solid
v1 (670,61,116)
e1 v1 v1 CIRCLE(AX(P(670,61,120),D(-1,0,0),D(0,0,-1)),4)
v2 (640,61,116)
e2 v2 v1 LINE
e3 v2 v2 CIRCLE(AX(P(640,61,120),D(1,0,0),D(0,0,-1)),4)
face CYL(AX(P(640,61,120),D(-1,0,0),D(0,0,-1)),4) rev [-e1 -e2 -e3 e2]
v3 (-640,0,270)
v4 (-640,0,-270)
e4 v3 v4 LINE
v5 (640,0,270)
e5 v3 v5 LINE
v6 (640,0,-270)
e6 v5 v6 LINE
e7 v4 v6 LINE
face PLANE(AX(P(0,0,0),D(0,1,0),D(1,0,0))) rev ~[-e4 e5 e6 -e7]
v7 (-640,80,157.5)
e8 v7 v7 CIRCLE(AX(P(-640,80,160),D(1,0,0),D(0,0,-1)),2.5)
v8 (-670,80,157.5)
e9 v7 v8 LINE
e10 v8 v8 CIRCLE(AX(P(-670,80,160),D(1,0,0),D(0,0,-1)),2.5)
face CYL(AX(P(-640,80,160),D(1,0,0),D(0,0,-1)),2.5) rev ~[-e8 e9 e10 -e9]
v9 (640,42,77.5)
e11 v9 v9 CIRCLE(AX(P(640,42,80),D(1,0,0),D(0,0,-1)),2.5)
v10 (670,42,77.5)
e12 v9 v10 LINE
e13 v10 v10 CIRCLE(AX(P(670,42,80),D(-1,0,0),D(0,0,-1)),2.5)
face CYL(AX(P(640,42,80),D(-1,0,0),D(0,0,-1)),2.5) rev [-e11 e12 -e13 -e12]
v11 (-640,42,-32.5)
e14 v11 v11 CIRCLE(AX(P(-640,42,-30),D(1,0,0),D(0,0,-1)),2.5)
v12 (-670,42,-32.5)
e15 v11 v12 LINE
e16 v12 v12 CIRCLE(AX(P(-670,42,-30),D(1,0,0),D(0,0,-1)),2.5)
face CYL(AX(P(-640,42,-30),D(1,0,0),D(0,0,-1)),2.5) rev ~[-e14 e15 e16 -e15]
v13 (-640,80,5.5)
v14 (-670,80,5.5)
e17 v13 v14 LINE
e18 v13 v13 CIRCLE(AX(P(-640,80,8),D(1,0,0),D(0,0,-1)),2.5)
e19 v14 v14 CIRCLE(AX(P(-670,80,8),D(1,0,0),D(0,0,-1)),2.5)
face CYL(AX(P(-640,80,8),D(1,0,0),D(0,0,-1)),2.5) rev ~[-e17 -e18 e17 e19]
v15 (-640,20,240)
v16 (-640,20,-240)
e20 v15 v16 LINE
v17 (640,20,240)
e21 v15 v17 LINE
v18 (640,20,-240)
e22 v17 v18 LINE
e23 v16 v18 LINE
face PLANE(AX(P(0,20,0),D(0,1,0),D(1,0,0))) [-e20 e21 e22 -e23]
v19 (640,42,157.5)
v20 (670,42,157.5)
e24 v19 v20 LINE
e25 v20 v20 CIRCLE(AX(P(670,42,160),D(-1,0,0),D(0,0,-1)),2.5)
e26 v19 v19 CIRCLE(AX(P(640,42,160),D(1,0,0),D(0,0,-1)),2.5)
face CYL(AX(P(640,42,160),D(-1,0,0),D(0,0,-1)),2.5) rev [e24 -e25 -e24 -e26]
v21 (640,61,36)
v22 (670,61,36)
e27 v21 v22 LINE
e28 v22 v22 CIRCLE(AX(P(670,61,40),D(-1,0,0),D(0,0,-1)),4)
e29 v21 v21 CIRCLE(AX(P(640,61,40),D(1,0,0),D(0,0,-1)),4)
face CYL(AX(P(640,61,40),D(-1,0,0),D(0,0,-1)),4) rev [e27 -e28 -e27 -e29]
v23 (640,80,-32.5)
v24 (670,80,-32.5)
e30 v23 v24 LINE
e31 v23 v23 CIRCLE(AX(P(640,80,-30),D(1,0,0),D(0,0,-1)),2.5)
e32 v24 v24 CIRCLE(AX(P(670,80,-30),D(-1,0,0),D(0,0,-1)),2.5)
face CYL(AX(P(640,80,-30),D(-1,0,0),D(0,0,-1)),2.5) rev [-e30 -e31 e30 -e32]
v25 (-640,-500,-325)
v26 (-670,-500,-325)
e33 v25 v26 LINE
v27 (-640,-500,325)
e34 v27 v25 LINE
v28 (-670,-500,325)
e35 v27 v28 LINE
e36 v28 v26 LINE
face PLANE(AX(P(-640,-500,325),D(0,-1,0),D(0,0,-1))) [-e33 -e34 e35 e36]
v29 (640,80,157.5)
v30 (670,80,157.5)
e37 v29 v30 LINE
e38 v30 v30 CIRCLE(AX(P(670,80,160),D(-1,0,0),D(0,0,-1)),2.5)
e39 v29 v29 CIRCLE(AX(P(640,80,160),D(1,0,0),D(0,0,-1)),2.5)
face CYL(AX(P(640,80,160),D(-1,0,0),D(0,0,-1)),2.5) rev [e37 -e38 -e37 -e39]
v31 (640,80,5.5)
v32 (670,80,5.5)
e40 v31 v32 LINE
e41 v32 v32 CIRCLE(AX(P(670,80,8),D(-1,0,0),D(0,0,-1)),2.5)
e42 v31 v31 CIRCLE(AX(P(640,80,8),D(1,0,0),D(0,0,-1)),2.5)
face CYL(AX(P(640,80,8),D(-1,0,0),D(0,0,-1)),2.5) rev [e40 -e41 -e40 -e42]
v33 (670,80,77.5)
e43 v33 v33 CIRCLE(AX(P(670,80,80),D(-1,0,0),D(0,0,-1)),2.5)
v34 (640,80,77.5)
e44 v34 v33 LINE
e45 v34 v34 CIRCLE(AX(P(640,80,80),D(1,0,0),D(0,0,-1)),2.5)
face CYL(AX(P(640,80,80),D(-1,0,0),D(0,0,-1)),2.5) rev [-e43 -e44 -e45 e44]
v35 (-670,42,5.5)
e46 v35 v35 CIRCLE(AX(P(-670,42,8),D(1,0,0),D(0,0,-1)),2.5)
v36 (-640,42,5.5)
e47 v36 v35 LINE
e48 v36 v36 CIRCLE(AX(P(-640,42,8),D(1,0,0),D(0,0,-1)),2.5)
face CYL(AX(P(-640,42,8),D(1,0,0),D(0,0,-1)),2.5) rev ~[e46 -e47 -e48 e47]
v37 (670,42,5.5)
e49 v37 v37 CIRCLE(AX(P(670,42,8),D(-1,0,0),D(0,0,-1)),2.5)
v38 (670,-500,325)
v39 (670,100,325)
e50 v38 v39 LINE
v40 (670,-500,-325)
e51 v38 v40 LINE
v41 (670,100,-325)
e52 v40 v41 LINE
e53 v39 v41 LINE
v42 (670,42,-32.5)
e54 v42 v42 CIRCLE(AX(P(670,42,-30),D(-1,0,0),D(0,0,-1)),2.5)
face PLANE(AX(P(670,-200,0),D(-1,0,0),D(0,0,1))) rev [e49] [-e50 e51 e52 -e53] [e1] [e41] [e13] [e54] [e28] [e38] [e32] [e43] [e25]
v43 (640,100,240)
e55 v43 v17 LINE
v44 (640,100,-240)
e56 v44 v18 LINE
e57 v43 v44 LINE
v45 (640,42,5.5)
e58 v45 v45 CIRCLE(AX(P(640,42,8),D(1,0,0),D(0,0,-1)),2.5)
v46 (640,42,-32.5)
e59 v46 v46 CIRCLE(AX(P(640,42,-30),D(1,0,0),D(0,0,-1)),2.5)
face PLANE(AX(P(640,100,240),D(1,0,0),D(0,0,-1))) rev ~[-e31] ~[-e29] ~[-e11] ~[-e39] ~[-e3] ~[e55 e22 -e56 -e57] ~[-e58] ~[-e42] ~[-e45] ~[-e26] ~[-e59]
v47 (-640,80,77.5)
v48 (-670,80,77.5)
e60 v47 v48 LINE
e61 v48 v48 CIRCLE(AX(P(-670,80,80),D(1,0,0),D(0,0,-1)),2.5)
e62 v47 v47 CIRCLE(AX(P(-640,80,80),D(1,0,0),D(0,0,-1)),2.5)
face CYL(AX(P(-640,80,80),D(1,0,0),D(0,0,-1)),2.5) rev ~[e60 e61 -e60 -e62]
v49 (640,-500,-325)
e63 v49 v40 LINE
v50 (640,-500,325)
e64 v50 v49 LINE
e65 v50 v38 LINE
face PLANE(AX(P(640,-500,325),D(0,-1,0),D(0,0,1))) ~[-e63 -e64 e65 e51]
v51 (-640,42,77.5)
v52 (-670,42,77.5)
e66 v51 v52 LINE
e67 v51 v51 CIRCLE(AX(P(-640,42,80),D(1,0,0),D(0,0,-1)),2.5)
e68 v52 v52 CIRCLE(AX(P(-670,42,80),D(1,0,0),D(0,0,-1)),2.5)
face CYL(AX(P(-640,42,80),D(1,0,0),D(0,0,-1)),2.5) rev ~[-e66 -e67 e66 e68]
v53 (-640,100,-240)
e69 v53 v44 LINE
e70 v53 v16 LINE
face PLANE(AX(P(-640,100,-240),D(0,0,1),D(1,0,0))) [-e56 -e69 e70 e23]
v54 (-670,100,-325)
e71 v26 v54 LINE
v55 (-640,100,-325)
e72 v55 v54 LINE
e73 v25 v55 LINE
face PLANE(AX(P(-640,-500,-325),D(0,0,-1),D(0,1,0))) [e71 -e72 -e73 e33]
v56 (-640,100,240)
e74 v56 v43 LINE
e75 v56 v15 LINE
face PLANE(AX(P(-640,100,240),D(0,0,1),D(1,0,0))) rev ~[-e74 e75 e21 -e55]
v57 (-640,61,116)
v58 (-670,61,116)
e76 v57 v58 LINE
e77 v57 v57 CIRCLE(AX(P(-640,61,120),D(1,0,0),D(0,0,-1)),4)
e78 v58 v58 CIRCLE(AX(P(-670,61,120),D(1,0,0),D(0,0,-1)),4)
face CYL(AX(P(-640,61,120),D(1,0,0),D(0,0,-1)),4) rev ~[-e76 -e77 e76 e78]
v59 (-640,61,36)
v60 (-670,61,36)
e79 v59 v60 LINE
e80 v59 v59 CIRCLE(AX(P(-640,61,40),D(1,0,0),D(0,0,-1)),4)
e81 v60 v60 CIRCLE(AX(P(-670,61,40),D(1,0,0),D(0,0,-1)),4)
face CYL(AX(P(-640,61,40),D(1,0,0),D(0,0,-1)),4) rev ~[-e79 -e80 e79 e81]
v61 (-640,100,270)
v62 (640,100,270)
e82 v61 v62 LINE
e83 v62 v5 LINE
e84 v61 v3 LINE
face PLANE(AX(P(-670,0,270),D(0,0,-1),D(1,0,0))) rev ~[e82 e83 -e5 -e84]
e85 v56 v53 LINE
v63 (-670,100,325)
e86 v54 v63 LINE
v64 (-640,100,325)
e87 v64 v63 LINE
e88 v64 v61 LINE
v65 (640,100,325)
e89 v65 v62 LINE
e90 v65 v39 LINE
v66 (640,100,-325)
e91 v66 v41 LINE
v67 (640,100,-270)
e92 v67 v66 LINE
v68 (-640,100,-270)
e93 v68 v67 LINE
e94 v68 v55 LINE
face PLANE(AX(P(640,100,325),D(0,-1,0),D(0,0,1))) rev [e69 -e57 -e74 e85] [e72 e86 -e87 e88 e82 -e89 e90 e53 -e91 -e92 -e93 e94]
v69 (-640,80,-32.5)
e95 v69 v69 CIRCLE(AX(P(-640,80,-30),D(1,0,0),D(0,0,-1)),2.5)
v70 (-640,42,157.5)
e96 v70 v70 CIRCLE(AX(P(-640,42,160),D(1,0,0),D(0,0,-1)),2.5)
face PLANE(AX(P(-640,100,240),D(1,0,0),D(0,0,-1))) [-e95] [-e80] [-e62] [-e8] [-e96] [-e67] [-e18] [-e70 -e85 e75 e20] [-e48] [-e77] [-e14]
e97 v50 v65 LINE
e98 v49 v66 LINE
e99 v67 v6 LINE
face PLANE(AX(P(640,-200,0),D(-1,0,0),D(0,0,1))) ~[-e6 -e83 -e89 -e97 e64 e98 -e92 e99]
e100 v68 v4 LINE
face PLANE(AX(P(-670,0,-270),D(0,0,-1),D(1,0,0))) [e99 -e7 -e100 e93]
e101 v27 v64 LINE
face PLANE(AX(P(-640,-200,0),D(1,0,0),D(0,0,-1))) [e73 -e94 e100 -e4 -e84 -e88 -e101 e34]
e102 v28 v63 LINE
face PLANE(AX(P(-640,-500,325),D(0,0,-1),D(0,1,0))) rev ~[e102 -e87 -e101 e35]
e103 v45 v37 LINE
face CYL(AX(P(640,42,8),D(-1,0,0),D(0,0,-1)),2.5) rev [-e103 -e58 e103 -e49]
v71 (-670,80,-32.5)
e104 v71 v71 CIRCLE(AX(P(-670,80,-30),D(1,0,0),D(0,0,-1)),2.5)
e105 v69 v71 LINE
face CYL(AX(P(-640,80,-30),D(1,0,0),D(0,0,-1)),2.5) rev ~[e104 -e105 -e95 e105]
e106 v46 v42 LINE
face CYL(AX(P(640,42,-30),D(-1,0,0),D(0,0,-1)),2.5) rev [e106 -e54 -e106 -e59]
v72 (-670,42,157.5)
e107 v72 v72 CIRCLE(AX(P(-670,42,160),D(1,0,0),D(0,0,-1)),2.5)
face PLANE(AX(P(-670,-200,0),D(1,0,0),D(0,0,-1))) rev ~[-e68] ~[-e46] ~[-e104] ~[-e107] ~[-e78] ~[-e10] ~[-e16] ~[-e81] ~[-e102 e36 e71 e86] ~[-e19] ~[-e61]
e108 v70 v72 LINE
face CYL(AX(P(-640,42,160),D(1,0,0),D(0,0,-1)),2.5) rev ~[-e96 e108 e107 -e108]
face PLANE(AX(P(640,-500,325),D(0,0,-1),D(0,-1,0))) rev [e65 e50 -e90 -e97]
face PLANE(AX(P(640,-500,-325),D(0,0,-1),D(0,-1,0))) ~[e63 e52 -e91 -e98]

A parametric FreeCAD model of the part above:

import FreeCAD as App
import Part
import Sketcher
Q = App.Units.Quantity

doc = App.newDocument("Part")
body = doc.addObject("PartDesign::Body", "Body")

sketch1 = body.newObject("Sketcher::SketchObject", "Sketch")
sketch1.AttachmentSupport = (doc.getObject("XZ_Plane"), [""])
sketch1.MapMode = "FlatFace"
sketch1.addGeometry([
    Part.LineSegment(App.Vector(-670, -270, 0), App.Vector(-670, 270, 0)),
    Part.LineSegment(App.Vector(-670, 270, 0), App.Vector(670, 270, 0)),
    Part.LineSegment(App.Vector(670, 270, 0), App.Vector(670, -270, 0)),
    Part.LineSegment(App.Vector(670, -270, 0), App.Vector(-670, -270, 0)),
], False)
sketch1.addConstraint([
    Sketcher.Constraint("Coincident", 0, 2, 1, 1),
    Sketcher.Constraint("Coincident", 1, 2, 2, 1),
    Sketcher.Constraint("Coincident", 2, 2, 3, 1),
    Sketcher.Constraint("Coincident", 3, 2, 0, 1),
    Sketcher.Constraint("Vertical", 0),
    Sketcher.Constraint("Horizontal", 1),
    Sketcher.Constraint("Vertical", 2),
    Sketcher.Constraint("Horizontal", 3),
    Sketcher.Constraint("Symmetric", 0, 2, 2, 2, -1, 1),
    Sketcher.Constraint("DistanceX", 1, 1, 1, 2, Q("1340 mm")),
    Sketcher.Constraint("DistanceY", 0, 1, 0, 2, Q("540 mm")),
])
pad1 = body.newObject("PartDesign::Pad", "Pad")
pad1.Profile = sketch1
pad1.Length = 100
pad1.Reversed = True

sketch2 = body.newObject("Sketcher::SketchObject", "Sketch001")
sketch2.AttachmentSupport = (doc.getObject("XZ_Plane"), [""])
sketch2.MapMode = "FlatFace"
sketch2.AttachmentOffset = App.Placement(App.Vector(0, 0, -100), App.Rotation())
sketch2.addGeometry([
    Part.LineSegment(App.Vector(-640, -240, 0), App.Vector(-640, 240, 0)),
    Part.LineSegment(App.Vector(-640, 240, 0), App.Vector(640, 240, 0)),
    Part.LineSegment(App.Vector(640, 240, 0), App.Vector(640, -240, 0)),
    Part.LineSegment(App.Vector(640, -240, 0), App.Vector(-640, -240, 0)),
], False)
sketch2.addConstraint([
    Sketcher.Constraint("Coincident", 0, 2, 1, 1),
    Sketcher.Constraint("Coincident", 1, 2, 2, 1),
    Sketcher.Constraint("Coincident", 2, 2, 3, 1),
    Sketcher.Constraint("Coincident", 3, 2, 0, 1),
    Sketcher.Constraint("Vertical", 0),
    Sketcher.Constraint("Horizontal", 1),
    Sketcher.Constraint("Vertical", 2),
    Sketcher.Constraint("Horizontal", 3),
    Sketcher.Constraint("Symmetric", 0, 2, 2, 2, -1, 1),
    Sketcher.Constraint("DistanceX", 1, 1, 1, 2, Q("1280 mm")),
    Sketcher.Constraint("DistanceY", 0, 1, 0, 2, Q("480 mm")),
])
pocket1 = body.newObject("PartDesign::Pocket", "Pocket")
pocket1.Profile = sketch2
pocket1.Length = 80
pocket1.Reversed = True

sketch3 = body.newObject("Sketcher::SketchObject", "Sketch002")
sketch3.AttachmentSupport = (doc.getObject("YZ_Plane"), [""])
sketch3.MapMode = "FlatFace"
sketch3.AttachmentOffset = App.Placement(App.Vector(0, 0, -640), App.Rotation())
sketch3.addGeometry([
    Part.LineSegment(App.Vector(100, 325, 0), App.Vector(-500, 325, 0)),
    Part.LineSegment(App.Vector(-500, 325, 0), App.Vector(-500, -325, 0)),
    Part.LineSegment(App.Vector(-500, -325, 0), App.Vector(100, -325, 0)),
    Part.LineSegment(App.Vector(100, -325, 0), App.Vector(100, 325, 0)),
], False)
sketch3.addConstraint([
    Sketcher.Constraint("Coincident", 0, 2, 1, 1),
    Sketcher.Constraint("Coincident", 1, 2, 2, 1),
    Sketcher.Constraint("Coincident", 2, 2, 3, 1),
    Sketcher.Constraint("Coincident", 3, 2, 0, 1),
    Sketcher.Constraint("Horizontal", 0),
    Sketcher.Constraint("Vertical", 1),
    Sketcher.Constraint("Horizontal", 2),
    Sketcher.Constraint("Vertical", 3),
    Sketcher.Constraint("DistanceX", 0, 2, 0, 1, Q("600 mm")),
    Sketcher.Constraint("DistanceY", 1, 2, 1, 1, Q("650 mm")),
    Sketcher.Constraint("DistanceX", 0, 2, -1, 1, Q("500 mm")),
    Sketcher.Constraint("DistanceY", -1, 1, 0, 2, Q("325 mm")),
])
pad2 = body.newObject("PartDesign::Pad", "Pad001")
pad2.Profile = sketch3
pad2.Length = 30
pad2.Reversed = True
doc.recompute()

mirrored = body.newObject("PartDesign::Mirrored", "Mirrored")
mirrored.Originals = [pad2]
mirrored.MirrorPlane = (doc.getObject("YZ_Plane"), [""])
body.Tip = mirrored

sketch4 = body.newObject("Sketcher::SketchObject", "Sketch003")
sketch4.AttachmentSupport = (doc.getObject("YZ_Plane"), [""])
sketch4.MapMode = "FlatFace"
sketch4.AttachmentOffset = App.Placement(App.Vector(0, 0, -640), App.Rotation())
sketch4.addGeometry([
    Part.Circle(App.Vector(80, 160, 0), App.Vector(0, 0, 1), 2.5),
    Part.Circle(App.Vector(42, 160, 0), App.Vector(0, 0, 1), 2.5),
    Part.Circle(App.Vector(42, 80, 0), App.Vector(0, 0, 1), 2.5),
    Part.Circle(App.Vector(80, 80, 0), App.Vector(0, 0, 1), 2.5),
    Part.Circle(App.Vector(80, -30, 0), App.Vector(0, 0, 1), 2.5),
    Part.Circle(App.Vector(42, -30, 0), App.Vector(0, 0, 1), 2.5),
    Part.Circle(App.Vector(42, 8, 0), App.Vector(0, 0, 1), 2.5),
    Part.Circle(App.Vector(80, 8, 0), App.Vector(0, 0, 1), 2.5),
], False)
sketch4.addConstraint([
    Sketcher.Constraint("Equal", 0, 1),
    Sketcher.Constraint("Equal", 1, 2),
    Sketcher.Constraint("Equal", 2, 3),
    Sketcher.Constraint("Equal", 3, 4),
    Sketcher.Constraint("Equal", 4, 5),
    Sketcher.Constraint("Equal", 5, 6),
    Sketcher.Constraint("Equal", 6, 7),
    Sketcher.Constraint("Horizontal", 0, 3, 1, 3),
    Sketcher.Constraint("Horizontal", 2, 3, 3, 3),
    Sketcher.Constraint("Horizontal", 4, 3, 5, 3),
    Sketcher.Constraint("Horizontal", 6, 3, 7, 3),
    Sketcher.Constraint("Vertical", 1, 3, 2, 3),
    Sketcher.Constraint("Vertical", 0, 3, 3, 3),
    Sketcher.Constraint("Vertical", 3, 3, 4, 3),
    Sketcher.Constraint("Vertical", 2, 3, 5, 3),
    Sketcher.Constraint("Vertical", 5, 3, 6, 3),
    Sketcher.Constraint("Vertical", 4, 3, 7, 3),
    Sketcher.Constraint("Diameter", 0, Q("5 mm")),
    Sketcher.Constraint("DistanceX", -1, 1, 0, 3, Q("80 mm")),
    Sketcher.Constraint("DistanceY", -1, 1, 0, 3, Q("160 mm")),
    Sketcher.Constraint("DistanceX", -1, 1, 1, 3, Q("42 mm")),
    Sketcher.Constraint("DistanceY", -1, 1, 2, 3, Q("80 mm")),
    Sketcher.Constraint("DistanceY", 4, 3, -1, 1, Q("30 mm")),
    Sketcher.Constraint("DistanceY", -1, 1, 6, 3, Q("8 mm")),
])
pocket2 = body.newObject("PartDesign::Pocket", "Pocket001")
pocket2.Profile = sketch4
pocket2.Length = 80
doc.recompute()

mirrored2 = body.newObject("PartDesign::Mirrored", "Mirrored001")
mirrored2.Originals = [pocket2]
mirrored2.MirrorPlane = (doc.getObject("YZ_Plane"), [""])
body.Tip = mirrored2

sketch5 = body.newObject("Sketcher::SketchObject", "Sketch004")
sketch5.AttachmentSupport = (doc.getObject("YZ_Plane"), [""])
sketch5.MapMode = "FlatFace"
sketch5.AttachmentOffset = App.Placement(App.Vector(0, 0, -640), App.Rotation())
sketch5.addGeometry([
    Part.Circle(App.Vector(61, 40, 0), App.Vector(0, 0, 1), 4),
    Part.Circle(App.Vector(61, 120, 0), App.Vector(0, 0, 1), 4),
], False)
sketch5.addConstraint([
    Sketcher.Constraint("Equal", 0, 1),
    Sketcher.Constraint("Vertical", 0, 3, 1, 3),
    Sketcher.Constraint("Diameter", 0, Q("8 mm")),
    Sketcher.Constraint("DistanceX", -1, 1, 0, 3, Q("61 mm")),
    Sketcher.Constraint("DistanceY", -1, 1, 0, 3, Q("40 mm")),
    Sketcher.Constraint("DistanceY", -1, 1, 1, 3, Q("120 mm")),
])
pocket3 = body.newObject("PartDesign::Pocket", "Pocket002")
pocket3.Profile = sketch5
pocket3.Length = 80
doc.recompute()

mirrored3 = body.newObject("PartDesign::Mirrored", "Mirrored002")
mirrored3.Originals = [pocket3]
mirrored3.MirrorPlane = (doc.getObject("YZ_Plane"), [""])
body.Tip = mirrored3

doc.recompute()
